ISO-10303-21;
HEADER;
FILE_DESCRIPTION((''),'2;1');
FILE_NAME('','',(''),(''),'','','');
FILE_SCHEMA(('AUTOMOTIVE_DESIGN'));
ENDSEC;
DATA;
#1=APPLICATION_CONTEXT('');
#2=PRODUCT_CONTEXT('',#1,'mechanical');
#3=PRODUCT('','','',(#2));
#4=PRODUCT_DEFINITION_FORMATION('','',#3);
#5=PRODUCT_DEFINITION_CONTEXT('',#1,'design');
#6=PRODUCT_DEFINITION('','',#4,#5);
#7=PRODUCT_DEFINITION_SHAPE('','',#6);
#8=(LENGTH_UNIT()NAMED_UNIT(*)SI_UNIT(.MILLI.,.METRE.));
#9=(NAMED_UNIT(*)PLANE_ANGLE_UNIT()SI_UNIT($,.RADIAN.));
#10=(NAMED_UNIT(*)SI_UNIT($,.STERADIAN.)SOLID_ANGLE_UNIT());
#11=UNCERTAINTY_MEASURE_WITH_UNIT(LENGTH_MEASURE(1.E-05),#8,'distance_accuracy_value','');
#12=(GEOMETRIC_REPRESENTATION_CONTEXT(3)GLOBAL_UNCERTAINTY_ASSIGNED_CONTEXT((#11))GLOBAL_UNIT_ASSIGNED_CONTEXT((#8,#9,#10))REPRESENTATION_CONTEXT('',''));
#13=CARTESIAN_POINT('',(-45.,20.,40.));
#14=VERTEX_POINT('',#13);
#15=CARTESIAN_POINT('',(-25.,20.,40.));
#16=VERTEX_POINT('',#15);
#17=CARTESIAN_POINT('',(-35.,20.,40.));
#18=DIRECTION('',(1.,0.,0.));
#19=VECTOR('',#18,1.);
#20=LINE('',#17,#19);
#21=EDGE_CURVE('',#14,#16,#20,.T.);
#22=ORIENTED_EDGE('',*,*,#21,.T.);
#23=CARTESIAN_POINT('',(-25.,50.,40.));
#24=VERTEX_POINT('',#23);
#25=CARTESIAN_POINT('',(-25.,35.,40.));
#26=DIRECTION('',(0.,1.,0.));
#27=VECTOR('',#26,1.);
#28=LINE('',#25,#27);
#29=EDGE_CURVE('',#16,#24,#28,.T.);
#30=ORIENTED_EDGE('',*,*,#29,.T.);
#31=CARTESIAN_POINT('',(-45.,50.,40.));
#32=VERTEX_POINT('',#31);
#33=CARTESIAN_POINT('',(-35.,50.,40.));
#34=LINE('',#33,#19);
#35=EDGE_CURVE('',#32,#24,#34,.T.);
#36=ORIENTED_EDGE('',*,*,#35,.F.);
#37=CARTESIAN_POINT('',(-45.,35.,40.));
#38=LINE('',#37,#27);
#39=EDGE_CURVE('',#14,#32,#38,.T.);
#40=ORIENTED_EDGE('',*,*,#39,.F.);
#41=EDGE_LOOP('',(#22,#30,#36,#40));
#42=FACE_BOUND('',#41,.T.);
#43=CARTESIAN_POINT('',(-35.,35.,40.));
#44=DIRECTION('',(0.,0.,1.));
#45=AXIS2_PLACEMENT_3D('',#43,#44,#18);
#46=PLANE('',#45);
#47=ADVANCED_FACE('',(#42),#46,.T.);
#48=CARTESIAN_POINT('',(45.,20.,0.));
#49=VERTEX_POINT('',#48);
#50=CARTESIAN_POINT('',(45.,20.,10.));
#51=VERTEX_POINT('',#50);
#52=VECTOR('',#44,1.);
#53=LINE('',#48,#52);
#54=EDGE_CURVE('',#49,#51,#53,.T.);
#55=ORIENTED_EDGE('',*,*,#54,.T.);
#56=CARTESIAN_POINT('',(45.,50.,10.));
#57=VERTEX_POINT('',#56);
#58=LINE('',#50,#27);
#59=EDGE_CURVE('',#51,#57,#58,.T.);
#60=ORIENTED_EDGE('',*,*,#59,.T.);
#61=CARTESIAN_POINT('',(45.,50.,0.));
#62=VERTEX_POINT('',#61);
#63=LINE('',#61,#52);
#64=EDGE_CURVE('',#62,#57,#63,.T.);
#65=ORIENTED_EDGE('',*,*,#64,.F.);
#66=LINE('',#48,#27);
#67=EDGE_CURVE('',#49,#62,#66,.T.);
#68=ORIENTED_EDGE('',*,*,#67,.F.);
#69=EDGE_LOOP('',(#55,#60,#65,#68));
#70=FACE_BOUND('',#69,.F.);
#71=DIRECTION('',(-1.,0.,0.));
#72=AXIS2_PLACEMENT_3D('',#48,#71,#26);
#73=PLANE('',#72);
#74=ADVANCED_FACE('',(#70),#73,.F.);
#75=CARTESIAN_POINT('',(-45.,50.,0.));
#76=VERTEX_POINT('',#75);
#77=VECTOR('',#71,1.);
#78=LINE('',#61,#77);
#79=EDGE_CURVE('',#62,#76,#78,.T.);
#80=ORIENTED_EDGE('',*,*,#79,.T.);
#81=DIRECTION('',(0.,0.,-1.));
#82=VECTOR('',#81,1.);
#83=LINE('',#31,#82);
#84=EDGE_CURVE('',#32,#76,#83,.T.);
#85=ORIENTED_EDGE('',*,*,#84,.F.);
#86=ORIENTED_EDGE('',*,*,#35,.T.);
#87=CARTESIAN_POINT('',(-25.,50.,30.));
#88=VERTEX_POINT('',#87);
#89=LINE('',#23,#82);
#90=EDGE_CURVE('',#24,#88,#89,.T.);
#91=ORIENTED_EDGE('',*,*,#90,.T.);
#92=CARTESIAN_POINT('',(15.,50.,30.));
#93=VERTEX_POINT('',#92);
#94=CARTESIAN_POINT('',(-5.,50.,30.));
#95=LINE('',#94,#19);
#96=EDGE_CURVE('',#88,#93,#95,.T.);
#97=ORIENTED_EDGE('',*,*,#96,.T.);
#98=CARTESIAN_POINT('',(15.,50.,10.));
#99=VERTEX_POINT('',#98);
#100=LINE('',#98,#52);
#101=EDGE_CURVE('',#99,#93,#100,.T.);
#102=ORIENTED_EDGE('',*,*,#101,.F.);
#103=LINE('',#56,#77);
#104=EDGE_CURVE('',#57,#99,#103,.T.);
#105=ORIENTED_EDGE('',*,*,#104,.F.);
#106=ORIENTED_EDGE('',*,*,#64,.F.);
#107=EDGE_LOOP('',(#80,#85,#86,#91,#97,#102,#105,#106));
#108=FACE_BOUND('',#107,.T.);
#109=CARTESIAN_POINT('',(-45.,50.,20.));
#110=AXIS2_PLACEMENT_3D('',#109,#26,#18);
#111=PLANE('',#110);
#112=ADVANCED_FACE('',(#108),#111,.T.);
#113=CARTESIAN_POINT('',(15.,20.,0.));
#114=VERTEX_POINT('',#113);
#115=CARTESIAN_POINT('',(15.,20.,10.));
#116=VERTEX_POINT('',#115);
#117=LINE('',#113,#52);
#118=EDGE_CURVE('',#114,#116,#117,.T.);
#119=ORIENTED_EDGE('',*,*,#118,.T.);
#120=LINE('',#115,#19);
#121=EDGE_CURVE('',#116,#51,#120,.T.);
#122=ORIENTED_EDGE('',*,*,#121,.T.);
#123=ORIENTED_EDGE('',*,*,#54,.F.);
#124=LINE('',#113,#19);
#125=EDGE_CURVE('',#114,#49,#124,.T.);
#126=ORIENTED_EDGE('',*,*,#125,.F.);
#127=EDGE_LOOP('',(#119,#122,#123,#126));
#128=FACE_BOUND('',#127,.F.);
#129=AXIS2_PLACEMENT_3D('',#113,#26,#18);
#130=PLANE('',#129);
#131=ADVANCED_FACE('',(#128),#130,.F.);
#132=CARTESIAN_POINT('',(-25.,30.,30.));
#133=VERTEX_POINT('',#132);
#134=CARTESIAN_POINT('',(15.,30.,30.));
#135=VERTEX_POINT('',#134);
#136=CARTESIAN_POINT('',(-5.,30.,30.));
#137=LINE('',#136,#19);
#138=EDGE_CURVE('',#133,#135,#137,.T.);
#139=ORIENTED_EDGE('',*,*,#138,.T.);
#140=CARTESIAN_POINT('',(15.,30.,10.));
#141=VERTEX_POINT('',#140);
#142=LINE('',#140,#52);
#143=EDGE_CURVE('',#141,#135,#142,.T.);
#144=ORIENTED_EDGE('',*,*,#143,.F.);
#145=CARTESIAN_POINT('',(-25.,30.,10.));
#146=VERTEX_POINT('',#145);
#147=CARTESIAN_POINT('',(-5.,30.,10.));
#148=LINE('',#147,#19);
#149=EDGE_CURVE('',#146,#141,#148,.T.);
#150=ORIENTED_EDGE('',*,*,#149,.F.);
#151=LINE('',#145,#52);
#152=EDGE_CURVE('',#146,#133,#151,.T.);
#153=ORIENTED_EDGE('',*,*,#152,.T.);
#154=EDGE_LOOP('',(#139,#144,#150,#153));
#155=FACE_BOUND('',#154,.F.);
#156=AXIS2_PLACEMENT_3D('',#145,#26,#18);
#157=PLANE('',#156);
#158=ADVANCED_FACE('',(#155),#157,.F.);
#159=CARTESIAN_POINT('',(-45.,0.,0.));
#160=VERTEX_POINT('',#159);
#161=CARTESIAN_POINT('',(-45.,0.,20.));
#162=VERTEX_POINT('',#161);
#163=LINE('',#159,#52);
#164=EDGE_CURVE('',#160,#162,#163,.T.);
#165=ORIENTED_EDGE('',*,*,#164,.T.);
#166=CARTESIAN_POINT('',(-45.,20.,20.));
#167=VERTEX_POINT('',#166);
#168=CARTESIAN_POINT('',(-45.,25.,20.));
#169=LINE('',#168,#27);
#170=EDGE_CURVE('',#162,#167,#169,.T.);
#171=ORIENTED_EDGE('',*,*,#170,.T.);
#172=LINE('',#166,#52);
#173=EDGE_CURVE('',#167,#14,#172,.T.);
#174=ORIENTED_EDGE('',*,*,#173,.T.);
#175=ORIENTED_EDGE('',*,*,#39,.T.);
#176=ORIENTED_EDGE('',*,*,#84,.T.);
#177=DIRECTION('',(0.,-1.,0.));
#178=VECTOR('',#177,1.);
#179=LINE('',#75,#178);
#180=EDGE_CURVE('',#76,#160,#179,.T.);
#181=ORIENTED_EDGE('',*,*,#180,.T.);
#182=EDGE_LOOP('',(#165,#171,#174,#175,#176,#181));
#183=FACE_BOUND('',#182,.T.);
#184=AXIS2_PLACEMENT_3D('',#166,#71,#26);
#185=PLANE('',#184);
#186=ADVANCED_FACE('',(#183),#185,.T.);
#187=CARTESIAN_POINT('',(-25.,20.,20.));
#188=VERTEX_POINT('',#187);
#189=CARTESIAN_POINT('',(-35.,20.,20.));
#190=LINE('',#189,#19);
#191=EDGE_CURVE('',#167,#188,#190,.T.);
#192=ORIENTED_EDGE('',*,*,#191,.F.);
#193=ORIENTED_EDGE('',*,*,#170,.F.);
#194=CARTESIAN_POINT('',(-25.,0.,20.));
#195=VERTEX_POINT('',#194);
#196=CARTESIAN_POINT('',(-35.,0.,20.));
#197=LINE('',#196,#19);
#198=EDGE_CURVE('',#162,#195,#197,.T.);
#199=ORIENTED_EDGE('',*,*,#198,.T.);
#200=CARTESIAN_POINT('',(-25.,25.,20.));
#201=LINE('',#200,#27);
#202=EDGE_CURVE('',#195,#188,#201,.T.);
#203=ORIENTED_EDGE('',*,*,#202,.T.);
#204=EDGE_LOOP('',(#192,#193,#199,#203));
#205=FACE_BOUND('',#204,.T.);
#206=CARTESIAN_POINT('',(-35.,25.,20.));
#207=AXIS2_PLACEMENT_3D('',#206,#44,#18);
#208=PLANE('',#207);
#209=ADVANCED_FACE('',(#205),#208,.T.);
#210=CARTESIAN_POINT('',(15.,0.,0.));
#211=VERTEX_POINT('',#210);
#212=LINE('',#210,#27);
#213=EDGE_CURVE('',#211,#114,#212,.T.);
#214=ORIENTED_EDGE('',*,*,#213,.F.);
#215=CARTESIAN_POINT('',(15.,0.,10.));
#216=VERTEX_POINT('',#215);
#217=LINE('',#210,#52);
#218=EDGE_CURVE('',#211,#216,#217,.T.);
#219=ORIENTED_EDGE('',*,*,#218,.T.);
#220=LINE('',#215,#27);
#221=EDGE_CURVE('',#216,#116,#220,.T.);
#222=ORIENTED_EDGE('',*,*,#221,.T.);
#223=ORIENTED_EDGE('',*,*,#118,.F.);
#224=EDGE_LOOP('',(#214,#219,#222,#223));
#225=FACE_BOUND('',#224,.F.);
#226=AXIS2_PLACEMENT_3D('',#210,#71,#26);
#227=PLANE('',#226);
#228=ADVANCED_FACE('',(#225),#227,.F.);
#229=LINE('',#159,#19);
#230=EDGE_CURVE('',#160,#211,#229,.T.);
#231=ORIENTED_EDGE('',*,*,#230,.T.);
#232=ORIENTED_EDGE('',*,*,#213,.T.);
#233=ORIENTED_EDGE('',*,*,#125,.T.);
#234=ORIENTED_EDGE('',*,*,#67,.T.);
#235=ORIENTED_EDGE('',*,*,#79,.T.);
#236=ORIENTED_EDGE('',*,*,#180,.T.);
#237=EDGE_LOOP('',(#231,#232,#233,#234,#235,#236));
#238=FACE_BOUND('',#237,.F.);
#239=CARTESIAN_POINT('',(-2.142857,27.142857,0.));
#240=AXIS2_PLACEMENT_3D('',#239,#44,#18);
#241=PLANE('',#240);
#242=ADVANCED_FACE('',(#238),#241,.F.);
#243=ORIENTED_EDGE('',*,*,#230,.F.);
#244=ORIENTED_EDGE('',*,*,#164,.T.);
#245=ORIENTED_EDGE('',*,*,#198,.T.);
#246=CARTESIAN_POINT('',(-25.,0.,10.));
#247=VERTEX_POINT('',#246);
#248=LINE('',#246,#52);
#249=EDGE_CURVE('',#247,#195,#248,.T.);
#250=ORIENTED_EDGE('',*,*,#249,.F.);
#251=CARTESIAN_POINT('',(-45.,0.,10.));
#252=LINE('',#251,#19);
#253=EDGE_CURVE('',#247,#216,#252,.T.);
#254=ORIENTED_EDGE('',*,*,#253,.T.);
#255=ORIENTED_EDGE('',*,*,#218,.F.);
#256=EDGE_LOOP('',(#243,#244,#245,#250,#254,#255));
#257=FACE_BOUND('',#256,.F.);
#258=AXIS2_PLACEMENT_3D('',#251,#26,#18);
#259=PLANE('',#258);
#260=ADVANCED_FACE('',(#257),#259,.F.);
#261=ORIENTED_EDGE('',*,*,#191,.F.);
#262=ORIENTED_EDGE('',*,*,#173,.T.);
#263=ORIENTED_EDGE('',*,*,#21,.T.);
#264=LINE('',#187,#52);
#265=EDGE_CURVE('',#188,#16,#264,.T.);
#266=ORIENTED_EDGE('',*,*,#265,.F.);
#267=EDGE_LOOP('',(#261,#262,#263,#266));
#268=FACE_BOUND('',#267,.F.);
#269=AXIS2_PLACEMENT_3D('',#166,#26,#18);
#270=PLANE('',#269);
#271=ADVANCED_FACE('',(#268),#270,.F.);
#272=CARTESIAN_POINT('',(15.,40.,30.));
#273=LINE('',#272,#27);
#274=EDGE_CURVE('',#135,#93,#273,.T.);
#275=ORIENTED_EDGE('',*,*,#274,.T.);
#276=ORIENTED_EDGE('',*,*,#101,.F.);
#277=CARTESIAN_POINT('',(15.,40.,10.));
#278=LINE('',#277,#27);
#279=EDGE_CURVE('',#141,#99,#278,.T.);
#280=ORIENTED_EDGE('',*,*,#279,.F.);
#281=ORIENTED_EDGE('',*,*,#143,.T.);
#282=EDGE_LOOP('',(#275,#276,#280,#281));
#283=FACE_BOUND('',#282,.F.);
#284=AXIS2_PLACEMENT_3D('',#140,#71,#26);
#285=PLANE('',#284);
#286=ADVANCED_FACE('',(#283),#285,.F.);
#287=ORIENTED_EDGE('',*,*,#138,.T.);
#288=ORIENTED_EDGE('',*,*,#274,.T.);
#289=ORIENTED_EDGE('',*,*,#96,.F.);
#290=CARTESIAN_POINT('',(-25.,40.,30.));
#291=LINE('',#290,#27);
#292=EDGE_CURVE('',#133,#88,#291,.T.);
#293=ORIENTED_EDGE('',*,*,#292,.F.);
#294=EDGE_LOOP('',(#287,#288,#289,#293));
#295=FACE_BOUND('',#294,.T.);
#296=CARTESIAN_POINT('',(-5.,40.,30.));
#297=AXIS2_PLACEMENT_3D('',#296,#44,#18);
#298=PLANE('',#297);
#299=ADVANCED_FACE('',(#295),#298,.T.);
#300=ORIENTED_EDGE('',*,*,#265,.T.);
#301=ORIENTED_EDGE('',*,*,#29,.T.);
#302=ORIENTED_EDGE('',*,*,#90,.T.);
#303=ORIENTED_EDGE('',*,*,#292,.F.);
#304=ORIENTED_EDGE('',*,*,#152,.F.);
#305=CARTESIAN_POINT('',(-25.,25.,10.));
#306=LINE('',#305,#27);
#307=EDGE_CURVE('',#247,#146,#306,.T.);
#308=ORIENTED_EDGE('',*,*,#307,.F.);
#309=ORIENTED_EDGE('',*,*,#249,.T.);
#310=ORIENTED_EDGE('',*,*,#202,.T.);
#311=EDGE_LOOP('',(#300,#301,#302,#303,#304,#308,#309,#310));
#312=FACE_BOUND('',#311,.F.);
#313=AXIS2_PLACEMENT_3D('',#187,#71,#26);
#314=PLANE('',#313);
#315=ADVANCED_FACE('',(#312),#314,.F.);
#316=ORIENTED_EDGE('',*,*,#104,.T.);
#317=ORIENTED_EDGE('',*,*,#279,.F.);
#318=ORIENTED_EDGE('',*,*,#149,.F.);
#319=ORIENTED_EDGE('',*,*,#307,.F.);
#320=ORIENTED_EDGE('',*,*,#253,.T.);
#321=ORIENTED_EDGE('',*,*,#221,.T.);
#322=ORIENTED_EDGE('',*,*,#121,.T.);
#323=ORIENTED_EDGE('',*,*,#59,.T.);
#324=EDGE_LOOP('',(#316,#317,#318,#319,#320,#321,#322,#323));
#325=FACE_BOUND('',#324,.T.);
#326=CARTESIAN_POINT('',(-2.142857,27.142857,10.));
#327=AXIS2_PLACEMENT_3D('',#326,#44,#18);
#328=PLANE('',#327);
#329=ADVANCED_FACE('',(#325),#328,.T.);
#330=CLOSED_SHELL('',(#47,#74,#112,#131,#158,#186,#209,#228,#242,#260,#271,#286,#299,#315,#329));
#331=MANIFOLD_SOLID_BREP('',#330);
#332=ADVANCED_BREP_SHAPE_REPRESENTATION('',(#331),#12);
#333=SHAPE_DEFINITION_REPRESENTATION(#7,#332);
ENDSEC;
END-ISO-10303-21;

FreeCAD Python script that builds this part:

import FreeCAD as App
import Part
import Sketcher
from FreeCAD import Vector

doc = App.newDocument("Part")
body = doc.addObject("PartDesign::Body", "Body")

# Sketch on XY plane
sketch1 = body.newObject("Sketcher::SketchObject", "Sketch")
sketch1.AttachmentSupport = (doc.getObject("XY_Plane"), [""])
sketch1.MapMode = "FlatFace"
sketch1.addGeometry(Part.LineSegment(Vector(-45, 50, 0), Vector(-45, 0, 0)), False)
sketch1.addGeometry(Part.LineSegment(Vector(-45, 0, 0), Vector(15, 0, 0)), False)
sketch1.addGeometry(Part.LineSegment(Vector(15, 0, 0), Vector(15, 20, 0)), False)
sketch1.addGeometry(Part.LineSegment(Vector(15, 20, 0), Vector(45, 20, 0)), False)
sketch1.addGeometry(Part.LineSegment(Vector(45, 20, 0), Vector(45, 50, 0)), False)
sketch1.addGeometry(Part.LineSegment(Vector(45, 50, 0), Vector(-45, 50, 0)), False)
sketch1.addConstraint(Sketcher.Constraint("Coincident", 0, 2, 1, 1))
sketch1.addConstraint(Sketcher.Constraint("Coincident", 1, 2, 2, 1))
sketch1.addConstraint(Sketcher.Constraint("Coincident", 2, 2, 3, 1))
sketch1.addConstraint(Sketcher.Constraint("Coincident", 3, 2, 4, 1))
sketch1.addConstraint(Sketcher.Constraint("Coincident", 4, 2, 5, 1))
sketch1.addConstraint(Sketcher.Constraint("Coincident", 5, 2, 0, 1))
sketch1.addConstraint(Sketcher.Constraint("Vertical", 0))
sketch1.addConstraint(Sketcher.Constraint("Horizontal", 1))
sketch1.addConstraint(Sketcher.Constraint("Vertical", 2))
sketch1.addConstraint(Sketcher.Constraint("Horizontal", 3))
sketch1.addConstraint(Sketcher.Constraint("Vertical", 4))
sketch1.addConstraint(Sketcher.Constraint("Horizontal", 5))
sketch1.addConstraint(Sketcher.Constraint("PointOnObject", 0, 2, -1))
sketch1.addConstraint(Sketcher.Constraint("Equal", 3, 4))
sketch1.addConstraint(Sketcher.Constraint("DistanceX", 1, 1, 1, 2, 60.0))
sketch1.addConstraint(Sketcher.Constraint("DistanceX", 3, 1, 3, 2, 30.0))
sketch1.addConstraint(Sketcher.Constraint("DistanceY", 0, 2, 0, 1, 50.0))
sketch1.addConstraint(Sketcher.Constraint("DistanceX", 0, 2, -1, 1, 45.0))
pad1 = body.newObject("PartDesign::Pad", "Pad")
pad1.Profile = sketch1
pad1.Length = 10

# Sketch on XY plane
sketch2 = body.newObject("Sketcher::SketchObject", "Sketch001")
sketch2.AttachmentSupport = (doc.getObject("XY_Plane"), [""])
sketch2.MapMode = "FlatFace"
sketch2.AttachmentOffset = App.Placement(Vector(0, 0, 10), App.Rotation())
sketch2.addGeometry(Part.LineSegment(Vector(-45, 50, 0), Vector(-45, 0, 0)), False)
sketch2.addGeometry(Part.LineSegment(Vector(-45, 0, 0), Vector(-25, 0, 0)), False)
sketch2.addGeometry(Part.LineSegment(Vector(-25, 0, 0), Vector(-25, 50, 0)), False)
sketch2.addGeometry(Part.LineSegment(Vector(-25, 50, 0), Vector(-45, 50, 0)), False)
sketch2.addConstraint(Sketcher.Constraint("Coincident", 0, 2, 1, 1))
sketch2.addConstraint(Sketcher.Constraint("Coincident", 1, 2, 2, 1))
sketch2.addConstraint(Sketcher.Constraint("Coincident", 2, 2, 3, 1))
sketch2.addConstraint(Sketcher.Constraint("Coincident", 3, 2, 0, 1))
sketch2.addConstraint(Sketcher.Constraint("Vertical", 0))
sketch2.addConstraint(Sketcher.Constraint("Horizontal", 1))
sketch2.addConstraint(Sketcher.Constraint("Vertical", 2))
sketch2.addConstraint(Sketcher.Constraint("Horizontal", 3))
sketch2.addConstraint(Sketcher.Constraint("PointOnObject", 0, 2, -1))
sketch2.addConstraint(Sketcher.Constraint("DistanceX", 1, 1, 1, 2, 20.0))
sketch2.addConstraint(Sketcher.Constraint("DistanceY", 0, 2, 0, 1, 50.0))
sketch2.addConstraint(Sketcher.Constraint("DistanceX", 0, 2, -1, 1, 45.0))
pad2 = body.newObject("PartDesign::Pad", "Pad001")
pad2.Profile = sketch2
pad2.Length = 10

# Sketch on XY plane
sketch3 = body.newObject("Sketcher::SketchObject", "Sketch002")
sketch3.AttachmentSupport = (doc.getObject("XY_Plane"), [""])
sketch3.MapMode = "FlatFace"
sketch3.AttachmentOffset = App.Placement(Vector(0, 0, 20), App.Rotation())
sketch3.addGeometry(Part.LineSegment(Vector(-45, 50, 0), Vector(-45, 20, 0)), False)
sketch3.addGeometry(Part.LineSegment(Vector(-45, 20, 0), Vector(-25, 20, 0)), False)
sketch3.addGeometry(Part.LineSegment(Vector(-25, 20, 0), Vector(-25, 50, 0)), False)
sketch3.addGeometry(Part.LineSegment(Vector(-25, 50, 0), Vector(-45, 50, 0)), False)
sketch3.addConstraint(Sketcher.Constraint("Coincident", 0, 2, 1, 1))
sketch3.addConstraint(Sketcher.Constraint("Coincident", 1, 2, 2, 1))
sketch3.addConstraint(Sketcher.Constraint("Coincident", 2, 2, 3, 1))
sketch3.addConstraint(Sketcher.Constraint("Coincident", 3, 2, 0, 1))
sketch3.addConstraint(Sketcher.Constraint("Vertical", 0))
sketch3.addConstraint(Sketcher.Constraint("Horizontal", 1))
sketch3.addConstraint(Sketcher.Constraint("Vertical", 2))
sketch3.addConstraint(Sketcher.Constraint("Horizontal", 3))
sketch3.addConstraint(Sketcher.Constraint("DistanceX", 1, 1, 1, 2, 20.0))
sketch3.addConstraint(Sketcher.Constraint("DistanceY", 0, 2, 0, 1, 30.0))
sketch3.addConstraint(Sketcher.Constraint("DistanceX", 0, 2, -1, 1, 45.0))
sketch3.addConstraint(Sketcher.Constraint("DistanceY", -1, 1, 0, 2, 20.0))
pad3 = body.newObject("PartDesign::Pad", "Pad002")
pad3.Profile = sketch3
pad3.Length = 20

# Sketch on XY plane
sketch4 = body.newObject("Sketcher::SketchObject", "Sketch003")
sketch4.AttachmentSupport = (doc.getObject("XY_Plane"), [""])
sketch4.MapMode = "FlatFace"
sketch4.AttachmentOffset = App.Placement(Vector(0, 0, 10), App.Rotation())
sketch4.addGeometry(Part.LineSegment(Vector(-25, 50, 0), Vector(-25, 30, 0)), False)
sketch4.addGeometry(Part.LineSegment(Vector(-25, 30, 0), Vector(15, 30, 0)), False)
sketch4.addGeometry(Part.LineSegment(Vector(15, 30, 0), Vector(15, 50, 0)), False)
sketch4.addGeometry(Part.LineSegment(Vector(15, 50, 0), Vector(-25, 50, 0)), False)
sketch4.addConstraint(Sketcher.Constraint("Coincident", 0, 2, 1, 1))
sketch4.addConstraint(Sketcher.Constraint("Coincident", 1, 2, 2, 1))
sketch4.addConstraint(Sketcher.Constraint("Coincident", 2, 2, 3, 1))
sketch4.addConstraint(Sketcher.Constraint("Coincident", 3, 2, 0, 1))
sketch4.addConstraint(Sketcher.Constraint("Vertical", 0))
sketch4.addConstraint(Sketcher.Constraint("Horizontal", 1))
sketch4.addConstraint(Sketcher.Constraint("Vertical", 2))
sketch4.addConstraint(Sketcher.Constraint("Horizontal", 3))
sketch4.addConstraint(Sketcher.Constraint("DistanceX", 1, 1, 1, 2, 40.0))
sketch4.addConstraint(Sketcher.Constraint("DistanceY", 0, 2, 0, 1, 20.0))
sketch4.addConstraint(Sketcher.Constraint("DistanceX", 0, 2, -1, 1, 25.0))
sketch4.addConstraint(Sketcher.Constraint("DistanceY", -1, 1, 0, 2, 30.0))
pad4 = body.newObject("PartDesign::Pad", "Pad003")
pad4.Profile = sketch4
pad4.Length = 20

doc.recompute()
